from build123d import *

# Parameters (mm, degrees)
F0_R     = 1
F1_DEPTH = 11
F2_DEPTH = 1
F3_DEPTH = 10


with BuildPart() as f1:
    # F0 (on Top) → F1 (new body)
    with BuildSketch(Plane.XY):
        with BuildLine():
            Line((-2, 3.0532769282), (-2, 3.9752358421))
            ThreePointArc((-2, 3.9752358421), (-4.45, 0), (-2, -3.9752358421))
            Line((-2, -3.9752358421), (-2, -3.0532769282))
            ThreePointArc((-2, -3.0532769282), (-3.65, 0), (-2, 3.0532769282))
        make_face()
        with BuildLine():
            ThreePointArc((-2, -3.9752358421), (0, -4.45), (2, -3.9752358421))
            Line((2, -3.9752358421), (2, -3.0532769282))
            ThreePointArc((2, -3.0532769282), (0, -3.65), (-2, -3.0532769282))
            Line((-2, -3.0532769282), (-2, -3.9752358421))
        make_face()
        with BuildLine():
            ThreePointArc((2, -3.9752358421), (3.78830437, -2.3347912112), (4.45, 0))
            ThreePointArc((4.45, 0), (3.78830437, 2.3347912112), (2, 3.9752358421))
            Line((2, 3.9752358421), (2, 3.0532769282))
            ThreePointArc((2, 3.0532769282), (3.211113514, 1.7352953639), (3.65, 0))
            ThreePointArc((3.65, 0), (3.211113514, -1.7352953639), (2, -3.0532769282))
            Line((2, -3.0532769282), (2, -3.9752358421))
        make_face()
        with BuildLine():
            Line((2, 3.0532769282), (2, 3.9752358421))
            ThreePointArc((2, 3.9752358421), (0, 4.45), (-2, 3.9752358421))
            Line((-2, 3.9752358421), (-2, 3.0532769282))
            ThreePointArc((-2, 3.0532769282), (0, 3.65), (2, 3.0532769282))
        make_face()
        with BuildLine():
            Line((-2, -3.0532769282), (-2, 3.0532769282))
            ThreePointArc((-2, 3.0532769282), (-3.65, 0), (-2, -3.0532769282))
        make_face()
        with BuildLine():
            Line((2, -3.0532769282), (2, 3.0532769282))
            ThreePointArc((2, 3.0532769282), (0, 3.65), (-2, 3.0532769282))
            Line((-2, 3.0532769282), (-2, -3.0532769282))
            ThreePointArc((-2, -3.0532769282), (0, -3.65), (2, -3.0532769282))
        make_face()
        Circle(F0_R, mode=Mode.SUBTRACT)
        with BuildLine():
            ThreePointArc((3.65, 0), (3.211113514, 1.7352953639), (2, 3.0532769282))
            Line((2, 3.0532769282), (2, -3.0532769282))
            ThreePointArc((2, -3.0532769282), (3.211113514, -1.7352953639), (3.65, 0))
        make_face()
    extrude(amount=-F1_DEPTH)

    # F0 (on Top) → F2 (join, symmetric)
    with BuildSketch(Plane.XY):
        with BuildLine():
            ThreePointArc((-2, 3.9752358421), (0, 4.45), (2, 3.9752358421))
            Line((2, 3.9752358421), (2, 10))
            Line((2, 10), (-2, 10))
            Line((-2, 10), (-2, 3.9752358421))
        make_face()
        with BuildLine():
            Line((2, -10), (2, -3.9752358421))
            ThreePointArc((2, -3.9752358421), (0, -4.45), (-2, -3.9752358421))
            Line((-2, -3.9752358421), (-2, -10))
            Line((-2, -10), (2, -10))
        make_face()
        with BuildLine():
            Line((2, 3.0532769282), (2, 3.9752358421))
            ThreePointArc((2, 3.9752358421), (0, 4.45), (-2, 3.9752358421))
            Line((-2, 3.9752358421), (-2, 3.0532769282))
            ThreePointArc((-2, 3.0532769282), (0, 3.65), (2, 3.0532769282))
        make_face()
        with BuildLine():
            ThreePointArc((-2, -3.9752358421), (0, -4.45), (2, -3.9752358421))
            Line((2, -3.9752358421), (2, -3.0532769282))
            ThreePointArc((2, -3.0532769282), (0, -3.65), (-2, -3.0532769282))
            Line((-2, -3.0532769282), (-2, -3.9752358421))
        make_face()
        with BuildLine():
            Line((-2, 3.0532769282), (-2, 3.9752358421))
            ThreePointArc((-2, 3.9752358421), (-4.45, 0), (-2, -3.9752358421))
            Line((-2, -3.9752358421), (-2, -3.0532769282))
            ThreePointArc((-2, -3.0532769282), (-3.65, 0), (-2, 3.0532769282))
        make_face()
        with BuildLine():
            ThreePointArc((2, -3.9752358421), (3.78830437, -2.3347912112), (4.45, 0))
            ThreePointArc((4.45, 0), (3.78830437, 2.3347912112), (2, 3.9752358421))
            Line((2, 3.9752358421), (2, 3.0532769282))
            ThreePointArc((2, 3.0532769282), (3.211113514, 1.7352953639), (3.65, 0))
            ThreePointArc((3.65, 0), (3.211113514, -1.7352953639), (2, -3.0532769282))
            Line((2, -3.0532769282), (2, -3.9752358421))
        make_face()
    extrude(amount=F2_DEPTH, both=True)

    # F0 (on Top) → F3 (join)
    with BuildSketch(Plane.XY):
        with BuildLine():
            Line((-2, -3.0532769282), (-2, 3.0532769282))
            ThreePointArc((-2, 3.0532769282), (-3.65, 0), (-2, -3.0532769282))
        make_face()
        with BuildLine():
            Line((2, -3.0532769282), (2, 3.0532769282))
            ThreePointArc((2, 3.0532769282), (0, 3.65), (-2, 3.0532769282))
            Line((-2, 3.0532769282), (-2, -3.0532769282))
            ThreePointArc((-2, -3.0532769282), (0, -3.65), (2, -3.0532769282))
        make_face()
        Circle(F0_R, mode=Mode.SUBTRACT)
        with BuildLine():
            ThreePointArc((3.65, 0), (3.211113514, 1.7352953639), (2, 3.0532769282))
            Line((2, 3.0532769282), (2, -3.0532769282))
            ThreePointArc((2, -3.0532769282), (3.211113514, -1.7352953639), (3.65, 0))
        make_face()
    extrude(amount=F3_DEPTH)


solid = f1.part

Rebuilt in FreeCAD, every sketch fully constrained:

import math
import FreeCAD as App
import Part
import Sketcher

doc = App.newDocument("Part")
body = doc.addObject("PartDesign::Body", "Body")

# Sketch on XY plane
sketch1 = doc.addObject("Sketcher::SketchObject", "Sketch")
body.addObject(sketch1)
sketch1.AttachmentSupport = (doc.XY_Plane, [""])
sketch1.MapMode = "FlatFace"
sketch1.addGeometry([
    Part.ArcOfCircle(Part.Circle(App.Vector(0, 0, 0), App.Vector(0, 0, 1), 4.5), math.radians(117), math.radians(243)),  # 0
    Part.ArcOfCircle(Part.Circle(App.Vector(0, 0, 0), App.Vector(0, 0, 1), 4.5), math.radians(-117), math.radians(-63)),  # 1
    Part.ArcOfCircle(Part.Circle(App.Vector(0, 0, 0), App.Vector(0, 0, 1), 4.5), math.radians(-63), math.radians(0)),  # 2
    Part.ArcOfCircle(Part.Circle(App.Vector(0, 0, 0), App.Vector(0, 0, 1), 4.5), math.radians(0), math.radians(63)),  # 3
    Part.ArcOfCircle(Part.Circle(App.Vector(0, 0, 0), App.Vector(0, 0, 1), 4.5), math.radians(63), math.radians(117)),  # 4
    Part.Circle(App.Vector(0, 0, 0), App.Vector(0, 0, 1), 1),  # 5
], False)
sketch1.addConstraint([
    Sketcher.Constraint("Tangent", 0, 2, 1, 1),
    Sketcher.Constraint("Tangent", 1, 2, 2, 1),
    Sketcher.Constraint("Tangent", 2, 2, 3, 1),
    Sketcher.Constraint("Tangent", 3, 2, 4, 1),
    Sketcher.Constraint("Tangent", 4, 2, 0, 1),
    Sketcher.Constraint("Coincident", 0, 3, -1, 1),
    Sketcher.Constraint("Coincident", 2, 3, -1, 1),
    Sketcher.Constraint("Coincident", 5, 3, -1, 1),
    Sketcher.Constraint("PointOnObject", 2, 2, -1),
    Sketcher.Constraint("Horizontal", 0, 2, 1, 2),
    Sketcher.Constraint("Horizontal", 3, 2, 4, 2),
    Sketcher.Constraint("Vertical", 1, 2, 3, 2),
    Sketcher.Constraint("Diameter", 5, 2.0),
    Sketcher.Constraint("Radius", 0, 4.45),
    Sketcher.Constraint("DistanceX", 0, 2, -1, 1, 2.0),
])
pad1 = doc.addObject("PartDesign::Pad", "Pad")
body.addObject(pad1)
pad1.Profile = sketch1
pad1.Length = 11
pad1.Reversed = True

# Sketch on XY plane
sketch2 = doc.addObject("Sketcher::SketchObject", "Sketch001")
body.addObject(sketch2)
sketch2.AttachmentSupport = (doc.XY_Plane, [""])
sketch2.MapMode = "FlatFace"
sketch2.addGeometry([
    Part.LineSegment(App.Vector(2, 10, 0), App.Vector(-2, 10, 0)),  # 0
    Part.LineSegment(App.Vector(-2, 10, 0), App.Vector(-2, 4, 0)),  # 1
    Part.ArcOfCircle(Part.Circle(App.Vector(0, 0, 0), App.Vector(0, 0, 1), 4.5), math.radians(117), math.radians(243)),  # 2
    Part.LineSegment(App.Vector(-2, -4, 0), App.Vector(-2, -10, 0)),  # 3
    Part.LineSegment(App.Vector(-2, -10, 0), App.Vector(2, -10, 0)),  # 4
    Part.LineSegment(App.Vector(2, -10, 0), App.Vector(2, -4, 0)),  # 5
    Part.ArcOfCircle(Part.Circle(App.Vector(0, 0, 0), App.Vector(0, 0, 1), 4.5), math.radians(-63), math.radians(0)),  # 6
    Part.ArcOfCircle(Part.Circle(App.Vector(0, 0, 0), App.Vector(0, 0, 1), 4.5), math.radians(0), math.radians(63)),  # 7
    Part.LineSegment(App.Vector(2, 4, 0), App.Vector(2, 10, 0)),  # 8
    Part.ArcOfCircle(Part.Circle(App.Vector(0, 0, 0), App.Vector(0, 0, 1), 3.6), math.radians(-123), math.radians(-57)),  # 9
    Part.ArcOfCircle(Part.Circle(App.Vector(0, 0, 0), App.Vector(0, 0, 1), 3.6), math.radians(123), math.radians(237)),  # 10
    Part.ArcOfCircle(Part.Circle(App.Vector(0, 0, 0), App.Vector(0, 0, 1), 3.6), math.radians(57), math.radians(123)),  # 11
    Part.ArcOfCircle(Part.Circle(App.Vector(0, 0, 0), App.Vector(0, 0, 1), 3.6), math.radians(0), math.radians(57)),  # 12
    Part.ArcOfCircle(Part.Circle(App.Vector(0, 0, 0), App.Vector(0, 0, 1), 3.6), math.radians(-57), math.radians(0)),  # 13
], False)
sketch2.addConstraint([
    Sketcher.Constraint("Coincident", 0, 2, 1, 1),
    Sketcher.Constraint("Coincident", 1, 2, 2, 1),
    Sketcher.Constraint("Coincident", 2, 2, 3, 1),
    Sketcher.Constraint("Coincident", 3, 2, 4, 1),
    Sketcher.Constraint("Coincident", 4, 2, 5, 1),
    Sketcher.Constraint("Coincident", 5, 2, 6, 1),
    Sketcher.Constraint("Tangent", 6, 2, 7, 1),
    Sketcher.Constraint("Coincident", 7, 2, 8, 1),
    Sketcher.Constraint("Coincident", 8, 2, 0, 1),
    Sketcher.Constraint("Tangent", 9, 1, 10, 2),
    Sketcher.Constraint("Tangent", 10, 1, 11, 2),
    Sketcher.Constraint("Tangent", 11, 1, 12, 2),
    Sketcher.Constraint("Tangent", 12, 1, 13, 2),
    Sketcher.Constraint("Tangent", 13, 1, 9, 2),
    Sketcher.Constraint("Horizontal", 0),
    Sketcher.Constraint("Vertical", 1),
    Sketcher.Constraint("Vertical", 3),
    Sketcher.Constraint("Horizontal", 4),
    Sketcher.Constraint("Vertical", 5),
    Sketcher.Constraint("Vertical", 8),
    Sketcher.Constraint("Coincident", 2, 3, -1, 1),
    Sketcher.Constraint("Coincident", 6, 3, -1, 1),
    Sketcher.Constraint("Coincident", 9, 3, -1, 1),
    Sketcher.Constraint("Coincident", 11, 3, -1, 1),
    Sketcher.Constraint("Equal", 2, 6),
    Sketcher.Constraint("Equal", 6, 7),
    Sketcher.Constraint("Symmetric", 0, 2, 4, 2, -1, 1),
    Sketcher.Constraint("PointOnObject", 6, 2, -1),
    Sketcher.Constraint("PointOnObject", 12, 1, -1),
    Sketcher.Constraint("Horizontal", 2, 2, 5, 2),
    Sketcher.Constraint("Horizontal", 1, 2, 7, 2),
    Sketcher.Constraint("Horizontal", 10, 1, 11, 1),
    Sketcher.Constraint("Horizontal", 9, 1, 13, 1),
    Sketcher.Constraint("Vertical", 3, 2, 9, 1),
    Sketcher.Constraint("Vertical", 9, 1, 10, 1),
    Sketcher.Constraint("DistanceX", 0, 2, 0, 1, 4.0),
    Sketcher.Constraint("Radius", 2, 4.45),
    Sketcher.Constraint("Radius", 9, 3.65),
    Sketcher.Constraint("DistanceY", -1, 1, 0, 2, 10.0),
])
pad2 = doc.addObject("PartDesign::Pad", "Pad001")
body.addObject(pad2)
pad2.Profile = sketch2
pad2.Length = 2
pad2.Midplane = True

# Sketch on XY plane
sketch3 = doc.addObject("Sketcher::SketchObject", "Sketch002")
body.addObject(sketch3)
sketch3.AttachmentSupport = (doc.XY_Plane, [""])
sketch3.MapMode = "FlatFace"
sketch3.addGeometry([
    Part.ArcOfCircle(Part.Circle(App.Vector(0, 0, 0), App.Vector(0, 0, 1), 3.6), math.radians(123), math.radians(237)),  # 0
    Part.ArcOfCircle(Part.Circle(App.Vector(0, 0, 0), App.Vector(0, 0, 1), 3.6), math.radians(-123), math.radians(-57)),  # 1
    Part.ArcOfCircle(Part.Circle(App.Vector(0, 0, 0), App.Vector(0, 0, 1), 3.6), math.radians(-57), math.radians(0)),  # 2
    Part.ArcOfCircle(Part.Circle(App.Vector(0, 0, 0), App.Vector(0, 0, 1), 3.6), math.radians(0), math.radians(57)),  # 3
    Part.ArcOfCircle(Part.Circle(App.Vector(0, 0, 0), App.Vector(0, 0, 1), 3.6), math.radians(57), math.radians(123)),  # 4
    Part.Circle(App.Vector(0, 0, 0), App.Vector(0, 0, 1), 1),  # 5
], False)
sketch3.addConstraint([
    Sketcher.Constraint("Tangent", 0, 2, 1, 1),
    Sketcher.Constraint("Tangent", 1, 2, 2, 1),
    Sketcher.Constraint("Tangent", 2, 2, 3, 1),
    Sketcher.Constraint("Tangent", 3, 2, 4, 1),
    Sketcher.Constraint("Tangent", 4, 2, 0, 1),
    Sketcher.Constraint("Coincident", 0, 3, -1, 1),
    Sketcher.Constraint("Coincident", 2, 3, -1, 1),
    Sketcher.Constraint("Coincident", 5, 3, -1, 1),
    Sketcher.Constraint("PointOnObject", 2, 2, -1),
    Sketcher.Constraint("Horizontal", 0, 2, 1, 2),
    Sketcher.Constraint("Horizontal", 3, 2, 4, 2),
    Sketcher.Constraint("Vertical", 1, 2, 3, 2),
    Sketcher.Constraint("Diameter", 5, 2.0),
    Sketcher.Constraint("Radius", 0, 3.65),
    Sketcher.Constraint("DistanceX", 0, 2, -1, 1, 2.0),
])
pad3 = doc.addObject("PartDesign::Pad", "Pad002")
body.addObject(pad3)
pad3.Profile = sketch3
pad3.Length = 10

doc.recompute()
